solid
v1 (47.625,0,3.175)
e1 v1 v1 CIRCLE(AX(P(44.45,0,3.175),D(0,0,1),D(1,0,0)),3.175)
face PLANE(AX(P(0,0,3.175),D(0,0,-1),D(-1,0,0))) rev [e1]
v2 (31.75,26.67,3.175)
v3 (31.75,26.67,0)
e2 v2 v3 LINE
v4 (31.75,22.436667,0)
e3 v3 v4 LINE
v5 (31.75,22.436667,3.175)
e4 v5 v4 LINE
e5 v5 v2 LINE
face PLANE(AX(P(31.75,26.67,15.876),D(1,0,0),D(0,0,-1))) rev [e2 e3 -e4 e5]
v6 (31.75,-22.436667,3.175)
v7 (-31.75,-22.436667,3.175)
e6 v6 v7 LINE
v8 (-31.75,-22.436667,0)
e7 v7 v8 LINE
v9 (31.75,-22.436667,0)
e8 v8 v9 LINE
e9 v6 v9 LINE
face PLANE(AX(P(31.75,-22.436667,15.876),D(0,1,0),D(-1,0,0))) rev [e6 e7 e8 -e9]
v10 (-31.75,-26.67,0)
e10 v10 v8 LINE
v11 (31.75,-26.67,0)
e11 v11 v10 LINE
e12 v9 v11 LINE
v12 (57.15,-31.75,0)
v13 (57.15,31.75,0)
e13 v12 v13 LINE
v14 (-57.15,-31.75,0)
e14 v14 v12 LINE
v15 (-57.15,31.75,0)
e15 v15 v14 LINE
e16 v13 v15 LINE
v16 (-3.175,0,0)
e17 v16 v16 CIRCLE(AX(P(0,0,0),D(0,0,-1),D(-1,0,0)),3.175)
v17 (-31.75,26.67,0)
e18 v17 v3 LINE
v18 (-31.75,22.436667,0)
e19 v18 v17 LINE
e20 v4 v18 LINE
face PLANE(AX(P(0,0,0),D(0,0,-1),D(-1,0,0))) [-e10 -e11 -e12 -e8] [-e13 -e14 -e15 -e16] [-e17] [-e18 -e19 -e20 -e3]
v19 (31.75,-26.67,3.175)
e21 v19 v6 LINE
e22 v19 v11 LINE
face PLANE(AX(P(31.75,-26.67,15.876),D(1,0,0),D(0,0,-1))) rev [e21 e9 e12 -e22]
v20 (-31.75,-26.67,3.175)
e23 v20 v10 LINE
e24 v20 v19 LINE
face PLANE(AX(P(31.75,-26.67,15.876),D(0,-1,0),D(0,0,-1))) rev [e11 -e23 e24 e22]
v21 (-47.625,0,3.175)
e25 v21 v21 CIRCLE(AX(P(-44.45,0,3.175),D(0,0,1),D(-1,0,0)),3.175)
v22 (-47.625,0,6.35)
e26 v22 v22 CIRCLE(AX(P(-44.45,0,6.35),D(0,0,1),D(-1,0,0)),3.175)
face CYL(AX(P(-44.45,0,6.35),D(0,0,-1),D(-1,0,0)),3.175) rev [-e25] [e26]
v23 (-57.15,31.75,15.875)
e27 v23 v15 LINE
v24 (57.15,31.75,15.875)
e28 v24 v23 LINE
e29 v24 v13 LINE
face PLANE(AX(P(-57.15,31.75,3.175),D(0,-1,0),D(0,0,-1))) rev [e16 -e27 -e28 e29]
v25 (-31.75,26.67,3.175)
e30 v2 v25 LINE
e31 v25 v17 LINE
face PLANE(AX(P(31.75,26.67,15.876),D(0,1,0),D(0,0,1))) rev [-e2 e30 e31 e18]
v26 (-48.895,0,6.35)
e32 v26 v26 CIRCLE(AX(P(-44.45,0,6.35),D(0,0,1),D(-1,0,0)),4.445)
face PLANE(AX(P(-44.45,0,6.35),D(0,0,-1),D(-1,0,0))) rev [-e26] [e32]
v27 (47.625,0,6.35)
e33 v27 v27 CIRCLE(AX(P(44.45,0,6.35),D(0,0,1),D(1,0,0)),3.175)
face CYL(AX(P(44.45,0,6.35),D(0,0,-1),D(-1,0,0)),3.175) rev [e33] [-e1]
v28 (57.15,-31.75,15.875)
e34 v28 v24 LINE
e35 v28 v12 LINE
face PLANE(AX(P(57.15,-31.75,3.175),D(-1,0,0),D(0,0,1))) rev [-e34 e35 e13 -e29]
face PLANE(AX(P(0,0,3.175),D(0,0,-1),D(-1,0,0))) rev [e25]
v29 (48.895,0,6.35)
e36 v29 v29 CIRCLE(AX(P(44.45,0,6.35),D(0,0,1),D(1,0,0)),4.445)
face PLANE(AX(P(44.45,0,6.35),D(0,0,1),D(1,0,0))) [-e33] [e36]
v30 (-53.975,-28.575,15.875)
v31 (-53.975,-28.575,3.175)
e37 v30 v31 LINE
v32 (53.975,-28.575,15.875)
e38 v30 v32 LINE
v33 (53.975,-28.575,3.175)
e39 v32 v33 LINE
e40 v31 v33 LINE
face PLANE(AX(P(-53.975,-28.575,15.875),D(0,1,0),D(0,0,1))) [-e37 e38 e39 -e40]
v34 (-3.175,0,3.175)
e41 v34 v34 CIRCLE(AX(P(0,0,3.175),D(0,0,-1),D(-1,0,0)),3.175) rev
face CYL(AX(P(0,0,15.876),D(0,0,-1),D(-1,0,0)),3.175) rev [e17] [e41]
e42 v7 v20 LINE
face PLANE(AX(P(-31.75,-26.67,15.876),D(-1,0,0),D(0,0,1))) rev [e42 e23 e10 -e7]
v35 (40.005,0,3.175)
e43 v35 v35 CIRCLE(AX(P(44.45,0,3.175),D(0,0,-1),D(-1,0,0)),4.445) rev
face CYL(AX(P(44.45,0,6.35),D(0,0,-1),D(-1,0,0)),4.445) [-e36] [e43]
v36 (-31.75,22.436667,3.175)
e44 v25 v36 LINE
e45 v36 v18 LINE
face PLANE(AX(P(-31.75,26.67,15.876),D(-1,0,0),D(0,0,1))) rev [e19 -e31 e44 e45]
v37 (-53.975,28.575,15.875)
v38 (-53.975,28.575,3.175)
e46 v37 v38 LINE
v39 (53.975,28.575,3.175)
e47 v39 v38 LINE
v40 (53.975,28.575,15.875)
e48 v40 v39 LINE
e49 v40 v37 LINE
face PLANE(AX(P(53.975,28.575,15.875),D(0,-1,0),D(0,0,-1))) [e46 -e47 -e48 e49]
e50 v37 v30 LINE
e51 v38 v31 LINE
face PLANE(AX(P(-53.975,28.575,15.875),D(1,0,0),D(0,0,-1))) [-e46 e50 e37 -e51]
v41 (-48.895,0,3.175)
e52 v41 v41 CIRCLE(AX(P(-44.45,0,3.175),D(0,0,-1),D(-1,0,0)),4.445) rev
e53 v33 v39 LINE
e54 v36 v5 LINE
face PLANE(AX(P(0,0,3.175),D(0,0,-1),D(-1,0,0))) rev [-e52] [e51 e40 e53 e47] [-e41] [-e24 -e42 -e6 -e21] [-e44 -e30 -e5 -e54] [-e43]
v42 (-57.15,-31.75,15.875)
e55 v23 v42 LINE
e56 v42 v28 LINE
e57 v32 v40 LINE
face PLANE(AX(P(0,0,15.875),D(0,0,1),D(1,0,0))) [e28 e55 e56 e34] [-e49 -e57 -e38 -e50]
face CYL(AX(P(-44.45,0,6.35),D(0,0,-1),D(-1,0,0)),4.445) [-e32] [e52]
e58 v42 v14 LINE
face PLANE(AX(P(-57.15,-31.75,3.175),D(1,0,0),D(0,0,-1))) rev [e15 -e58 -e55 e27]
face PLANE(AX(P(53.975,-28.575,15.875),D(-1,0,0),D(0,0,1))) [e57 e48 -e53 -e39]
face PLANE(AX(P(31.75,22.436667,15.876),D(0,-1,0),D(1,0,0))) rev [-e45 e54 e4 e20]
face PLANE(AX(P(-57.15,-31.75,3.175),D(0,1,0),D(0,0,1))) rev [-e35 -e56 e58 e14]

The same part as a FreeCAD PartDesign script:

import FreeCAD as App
import Part
import Sketcher

V = App.Vector
Q = App.Units.Quantity


def add_polygon(sketch, points):
    """Adds a closed chain of lines whose ends are joined by coincident constraints."""
    first, n = sketch.GeometryCount, len(points)
    for a, b in zip(points, points[1:] + points[:1]):
        sketch.addGeometry(Part.LineSegment(App.Vector(*a, 0), App.Vector(*b, 0)), False)
    for i in range(n):
        sketch.addConstraint(Sketcher.Constraint("Coincident", first + i, 2, first + (i + 1) % n, 1))

doc = App.newDocument("Part")
body = doc.addObject("PartDesign::Body", "Body")

sketch1 = body.newObject("Sketcher::SketchObject", "Sketch")
sketch1.AttachmentSupport = (doc.getObject("XY_Plane"), [""])
sketch1.MapMode = "FlatFace"
add_polygon(sketch1, [(-57.15, 31.75), (-57.15, -31.75), (57.15, -31.75), (57.15, 31.75)])
sketch1.addConstraint([
    Sketcher.Constraint("Vertical", 0),
    Sketcher.Constraint("Horizontal", 1),
    Sketcher.Constraint("Vertical", 2),
    Sketcher.Constraint("Horizontal", 3),
    Sketcher.Constraint("Symmetric", 0, 2, 2, 2, -1, 1),
    Sketcher.Constraint("DistanceX", 1, 1, 1, 2, Q("4.5 in")),
    Sketcher.Constraint("DistanceY", 0, 2, 0, 1, Q("2.5 in")),
])
pad1 = body.newObject("PartDesign::Pad", "Pad")
pad1.Profile = sketch1
pad1.Length = Q("0.125 in")

sketch2 = body.newObject("Sketcher::SketchObject", "Sketch001")
sketch2.AttachmentSupport = (doc.getObject("XY_Plane"), [""])
sketch2.MapMode = "FlatFace"
sketch2.AttachmentOffset = App.Placement(V(0, 0, 0.125 * 25.4), App.Rotation())
add_polygon(sketch2, [(-57.15, 31.75), (-57.15, -31.75), (57.15, -31.75), (57.15, 31.75)])
add_polygon(sketch2, [(53.975, -28.575), (-53.975, -28.575), (-53.975, 28.575), (53.975, 28.575)])
sketch2.addConstraint([
    Sketcher.Constraint("Vertical", 0),
    Sketcher.Constraint("Horizontal", 1),
    Sketcher.Constraint("Vertical", 2),
    Sketcher.Constraint("Horizontal", 3),
    Sketcher.Constraint("Horizontal", 4),
    Sketcher.Constraint("Vertical", 5),
    Sketcher.Constraint("Horizontal", 6),
    Sketcher.Constraint("Vertical", 7),
    Sketcher.Constraint("Symmetric", 0, 2, 2, 2, -1, 1),
    Sketcher.Constraint("Symmetric", 4, 2, 6, 2, -1, 1),
    Sketcher.Constraint("DistanceX", 1, 1, 1, 2, Q("4.5 in")),
    Sketcher.Constraint("DistanceY", 0, 2, 0, 1, Q("2.5 in")),
    Sketcher.Constraint("DistanceX", 4, 2, 4, 1, Q("4.25 in")),
    Sketcher.Constraint("DistanceY", 5, 1, 5, 2, Q("2.25 in")),
])
pad2 = body.newObject("PartDesign::Pad", "Pad001")
pad2.Profile = sketch2
pad2.Length = Q("0.5 in")

sketch3 = body.newObject("Sketcher::SketchObject", "Sketch002")
sketch3.AttachmentSupport = (doc.getObject("XY_Plane"), [""])
sketch3.MapMode = "FlatFace"
sketch3.addGeometry(Part.Circle(V(0, 0, 0), V(0, 0, 1), 3.175), False)
sketch3.addConstraint([
    Sketcher.Constraint("Coincident", 0, 3, -1, 1),
    Sketcher.Constraint("Diameter", 0, Q("0.25 in")),
])
pocket1 = body.newObject("PartDesign::Pocket", "Pocket")
pocket1.Profile = sketch3
pocket1.Type = "UpToFirst"
pocket1.Reversed = True

sketch4 = body.newObject("Sketcher::SketchObject", "Sketch003")
sketch4.AttachmentSupport = (doc.getObject("XY_Plane"), [""])
sketch4.MapMode = "FlatFace"
add_polygon(sketch4, [(31.75, 26.67), (31.75, 22.436667), (-31.75, 22.436667), (-31.75, 26.67)])
sketch4.addConstraint([
    Sketcher.Constraint("Vertical", 0),
    Sketcher.Constraint("Horizontal", 1),
    Sketcher.Constraint("Vertical", 2),
    Sketcher.Constraint("Horizontal", 3),
    Sketcher.Constraint("DistanceX", 1, 2, 1, 1, Q("2.5 in")),
    Sketcher.Constraint("DistanceX", -1, 1, 0, 2, Q("1.25 in")),
    Sketcher.Constraint("DistanceY", -1, 1, 2, 2, Q("1.05 in")),
    Sketcher.Constraint("DistanceY", 0, 2, 0, 1, Q("4.233333 mm")),
])
pocket2 = body.newObject("PartDesign::Pocket", "Pocket001")
pocket2.Profile = sketch4
pocket2.Type = "UpToFirst"
pocket2.Reversed = True

sketch5 = body.newObject("Sketcher::SketchObject", "Sketch004")
sketch5.AttachmentSupport = (doc.getObject("XY_Plane"), [""])
sketch5.MapMode = "FlatFace"
add_polygon(sketch5, [(31.75, -22.436667), (31.75, -26.67), (-31.75, -26.67), (-31.75, -22.436667)])
sketch5.addConstraint([
    Sketcher.Constraint("Vertical", 0),
    Sketcher.Constraint("Horizontal", 1),
    Sketcher.Constraint("Vertical", 2),
    Sketcher.Constraint("Horizontal", 3),
    Sketcher.Constraint("DistanceX", 1, 2, 1, 1, Q("2.5 in")),
    Sketcher.Constraint("DistanceX", -1, 1, 0, 2, Q("1.25 in")),
    Sketcher.Constraint("DistanceY", 0, 2, -1, 1, Q("1.05 in")),
    Sketcher.Constraint("DistanceY", 0, 2, 0, 1, Q("4.233333 mm")),
])
pocket3 = body.newObject("PartDesign::Pocket", "Pocket002")
pocket3.Profile = sketch5
pocket3.Type = "UpToFirst"
pocket3.Reversed = True

sketch6 = body.newObject("Sketcher::SketchObject", "Sketch005")
sketch6.AttachmentSupport = (doc.getObject("XY_Plane"), [""])
sketch6.MapMode = "FlatFace"
sketch6.AttachmentOffset = App.Placement(V(0, 0, 0.125 * 25.4), App.Rotation())
sketch6.addGeometry([
    Part.Circle(V(44.45, 0, 0), V(0, 0, 1), 4.445),
    Part.Circle(V(44.45, 0, 0), V(0, 0, 1), 3.175),
    Part.Circle(V(-44.45, 0, 0), V(0, 0, 1), 4.445),
    Part.Circle(V(-44.45, 0, 0), V(0, 0, 1), 3.175),
], False)
sketch6.addConstraint([
    Sketcher.Constraint("Coincident", 1, 3, 0, 3),
    Sketcher.Constraint("Coincident", 3, 3, 2, 3),
    Sketcher.Constraint("Equal", 0, 2),
    Sketcher.Constraint("Equal", 1, 3),
    Sketcher.Constraint("Symmetric", 0, 3, 2, 3, -1, 1),
    Sketcher.Constraint("PointOnObject", 0, 3, -1),
    Sketcher.Constraint("Diameter", 0, Q("0.35 in")),
    Sketcher.Constraint("Diameter", 1, Q("0.25 in")),
    Sketcher.Constraint("DistanceX", 2, 3, 0, 3, Q("3.5 in")),
])
pad3 = body.newObject("PartDesign::Pad", "Pad002")
pad3.Profile = sketch6
pad3.Length = Q("0.125 in")

doc.recompute()
